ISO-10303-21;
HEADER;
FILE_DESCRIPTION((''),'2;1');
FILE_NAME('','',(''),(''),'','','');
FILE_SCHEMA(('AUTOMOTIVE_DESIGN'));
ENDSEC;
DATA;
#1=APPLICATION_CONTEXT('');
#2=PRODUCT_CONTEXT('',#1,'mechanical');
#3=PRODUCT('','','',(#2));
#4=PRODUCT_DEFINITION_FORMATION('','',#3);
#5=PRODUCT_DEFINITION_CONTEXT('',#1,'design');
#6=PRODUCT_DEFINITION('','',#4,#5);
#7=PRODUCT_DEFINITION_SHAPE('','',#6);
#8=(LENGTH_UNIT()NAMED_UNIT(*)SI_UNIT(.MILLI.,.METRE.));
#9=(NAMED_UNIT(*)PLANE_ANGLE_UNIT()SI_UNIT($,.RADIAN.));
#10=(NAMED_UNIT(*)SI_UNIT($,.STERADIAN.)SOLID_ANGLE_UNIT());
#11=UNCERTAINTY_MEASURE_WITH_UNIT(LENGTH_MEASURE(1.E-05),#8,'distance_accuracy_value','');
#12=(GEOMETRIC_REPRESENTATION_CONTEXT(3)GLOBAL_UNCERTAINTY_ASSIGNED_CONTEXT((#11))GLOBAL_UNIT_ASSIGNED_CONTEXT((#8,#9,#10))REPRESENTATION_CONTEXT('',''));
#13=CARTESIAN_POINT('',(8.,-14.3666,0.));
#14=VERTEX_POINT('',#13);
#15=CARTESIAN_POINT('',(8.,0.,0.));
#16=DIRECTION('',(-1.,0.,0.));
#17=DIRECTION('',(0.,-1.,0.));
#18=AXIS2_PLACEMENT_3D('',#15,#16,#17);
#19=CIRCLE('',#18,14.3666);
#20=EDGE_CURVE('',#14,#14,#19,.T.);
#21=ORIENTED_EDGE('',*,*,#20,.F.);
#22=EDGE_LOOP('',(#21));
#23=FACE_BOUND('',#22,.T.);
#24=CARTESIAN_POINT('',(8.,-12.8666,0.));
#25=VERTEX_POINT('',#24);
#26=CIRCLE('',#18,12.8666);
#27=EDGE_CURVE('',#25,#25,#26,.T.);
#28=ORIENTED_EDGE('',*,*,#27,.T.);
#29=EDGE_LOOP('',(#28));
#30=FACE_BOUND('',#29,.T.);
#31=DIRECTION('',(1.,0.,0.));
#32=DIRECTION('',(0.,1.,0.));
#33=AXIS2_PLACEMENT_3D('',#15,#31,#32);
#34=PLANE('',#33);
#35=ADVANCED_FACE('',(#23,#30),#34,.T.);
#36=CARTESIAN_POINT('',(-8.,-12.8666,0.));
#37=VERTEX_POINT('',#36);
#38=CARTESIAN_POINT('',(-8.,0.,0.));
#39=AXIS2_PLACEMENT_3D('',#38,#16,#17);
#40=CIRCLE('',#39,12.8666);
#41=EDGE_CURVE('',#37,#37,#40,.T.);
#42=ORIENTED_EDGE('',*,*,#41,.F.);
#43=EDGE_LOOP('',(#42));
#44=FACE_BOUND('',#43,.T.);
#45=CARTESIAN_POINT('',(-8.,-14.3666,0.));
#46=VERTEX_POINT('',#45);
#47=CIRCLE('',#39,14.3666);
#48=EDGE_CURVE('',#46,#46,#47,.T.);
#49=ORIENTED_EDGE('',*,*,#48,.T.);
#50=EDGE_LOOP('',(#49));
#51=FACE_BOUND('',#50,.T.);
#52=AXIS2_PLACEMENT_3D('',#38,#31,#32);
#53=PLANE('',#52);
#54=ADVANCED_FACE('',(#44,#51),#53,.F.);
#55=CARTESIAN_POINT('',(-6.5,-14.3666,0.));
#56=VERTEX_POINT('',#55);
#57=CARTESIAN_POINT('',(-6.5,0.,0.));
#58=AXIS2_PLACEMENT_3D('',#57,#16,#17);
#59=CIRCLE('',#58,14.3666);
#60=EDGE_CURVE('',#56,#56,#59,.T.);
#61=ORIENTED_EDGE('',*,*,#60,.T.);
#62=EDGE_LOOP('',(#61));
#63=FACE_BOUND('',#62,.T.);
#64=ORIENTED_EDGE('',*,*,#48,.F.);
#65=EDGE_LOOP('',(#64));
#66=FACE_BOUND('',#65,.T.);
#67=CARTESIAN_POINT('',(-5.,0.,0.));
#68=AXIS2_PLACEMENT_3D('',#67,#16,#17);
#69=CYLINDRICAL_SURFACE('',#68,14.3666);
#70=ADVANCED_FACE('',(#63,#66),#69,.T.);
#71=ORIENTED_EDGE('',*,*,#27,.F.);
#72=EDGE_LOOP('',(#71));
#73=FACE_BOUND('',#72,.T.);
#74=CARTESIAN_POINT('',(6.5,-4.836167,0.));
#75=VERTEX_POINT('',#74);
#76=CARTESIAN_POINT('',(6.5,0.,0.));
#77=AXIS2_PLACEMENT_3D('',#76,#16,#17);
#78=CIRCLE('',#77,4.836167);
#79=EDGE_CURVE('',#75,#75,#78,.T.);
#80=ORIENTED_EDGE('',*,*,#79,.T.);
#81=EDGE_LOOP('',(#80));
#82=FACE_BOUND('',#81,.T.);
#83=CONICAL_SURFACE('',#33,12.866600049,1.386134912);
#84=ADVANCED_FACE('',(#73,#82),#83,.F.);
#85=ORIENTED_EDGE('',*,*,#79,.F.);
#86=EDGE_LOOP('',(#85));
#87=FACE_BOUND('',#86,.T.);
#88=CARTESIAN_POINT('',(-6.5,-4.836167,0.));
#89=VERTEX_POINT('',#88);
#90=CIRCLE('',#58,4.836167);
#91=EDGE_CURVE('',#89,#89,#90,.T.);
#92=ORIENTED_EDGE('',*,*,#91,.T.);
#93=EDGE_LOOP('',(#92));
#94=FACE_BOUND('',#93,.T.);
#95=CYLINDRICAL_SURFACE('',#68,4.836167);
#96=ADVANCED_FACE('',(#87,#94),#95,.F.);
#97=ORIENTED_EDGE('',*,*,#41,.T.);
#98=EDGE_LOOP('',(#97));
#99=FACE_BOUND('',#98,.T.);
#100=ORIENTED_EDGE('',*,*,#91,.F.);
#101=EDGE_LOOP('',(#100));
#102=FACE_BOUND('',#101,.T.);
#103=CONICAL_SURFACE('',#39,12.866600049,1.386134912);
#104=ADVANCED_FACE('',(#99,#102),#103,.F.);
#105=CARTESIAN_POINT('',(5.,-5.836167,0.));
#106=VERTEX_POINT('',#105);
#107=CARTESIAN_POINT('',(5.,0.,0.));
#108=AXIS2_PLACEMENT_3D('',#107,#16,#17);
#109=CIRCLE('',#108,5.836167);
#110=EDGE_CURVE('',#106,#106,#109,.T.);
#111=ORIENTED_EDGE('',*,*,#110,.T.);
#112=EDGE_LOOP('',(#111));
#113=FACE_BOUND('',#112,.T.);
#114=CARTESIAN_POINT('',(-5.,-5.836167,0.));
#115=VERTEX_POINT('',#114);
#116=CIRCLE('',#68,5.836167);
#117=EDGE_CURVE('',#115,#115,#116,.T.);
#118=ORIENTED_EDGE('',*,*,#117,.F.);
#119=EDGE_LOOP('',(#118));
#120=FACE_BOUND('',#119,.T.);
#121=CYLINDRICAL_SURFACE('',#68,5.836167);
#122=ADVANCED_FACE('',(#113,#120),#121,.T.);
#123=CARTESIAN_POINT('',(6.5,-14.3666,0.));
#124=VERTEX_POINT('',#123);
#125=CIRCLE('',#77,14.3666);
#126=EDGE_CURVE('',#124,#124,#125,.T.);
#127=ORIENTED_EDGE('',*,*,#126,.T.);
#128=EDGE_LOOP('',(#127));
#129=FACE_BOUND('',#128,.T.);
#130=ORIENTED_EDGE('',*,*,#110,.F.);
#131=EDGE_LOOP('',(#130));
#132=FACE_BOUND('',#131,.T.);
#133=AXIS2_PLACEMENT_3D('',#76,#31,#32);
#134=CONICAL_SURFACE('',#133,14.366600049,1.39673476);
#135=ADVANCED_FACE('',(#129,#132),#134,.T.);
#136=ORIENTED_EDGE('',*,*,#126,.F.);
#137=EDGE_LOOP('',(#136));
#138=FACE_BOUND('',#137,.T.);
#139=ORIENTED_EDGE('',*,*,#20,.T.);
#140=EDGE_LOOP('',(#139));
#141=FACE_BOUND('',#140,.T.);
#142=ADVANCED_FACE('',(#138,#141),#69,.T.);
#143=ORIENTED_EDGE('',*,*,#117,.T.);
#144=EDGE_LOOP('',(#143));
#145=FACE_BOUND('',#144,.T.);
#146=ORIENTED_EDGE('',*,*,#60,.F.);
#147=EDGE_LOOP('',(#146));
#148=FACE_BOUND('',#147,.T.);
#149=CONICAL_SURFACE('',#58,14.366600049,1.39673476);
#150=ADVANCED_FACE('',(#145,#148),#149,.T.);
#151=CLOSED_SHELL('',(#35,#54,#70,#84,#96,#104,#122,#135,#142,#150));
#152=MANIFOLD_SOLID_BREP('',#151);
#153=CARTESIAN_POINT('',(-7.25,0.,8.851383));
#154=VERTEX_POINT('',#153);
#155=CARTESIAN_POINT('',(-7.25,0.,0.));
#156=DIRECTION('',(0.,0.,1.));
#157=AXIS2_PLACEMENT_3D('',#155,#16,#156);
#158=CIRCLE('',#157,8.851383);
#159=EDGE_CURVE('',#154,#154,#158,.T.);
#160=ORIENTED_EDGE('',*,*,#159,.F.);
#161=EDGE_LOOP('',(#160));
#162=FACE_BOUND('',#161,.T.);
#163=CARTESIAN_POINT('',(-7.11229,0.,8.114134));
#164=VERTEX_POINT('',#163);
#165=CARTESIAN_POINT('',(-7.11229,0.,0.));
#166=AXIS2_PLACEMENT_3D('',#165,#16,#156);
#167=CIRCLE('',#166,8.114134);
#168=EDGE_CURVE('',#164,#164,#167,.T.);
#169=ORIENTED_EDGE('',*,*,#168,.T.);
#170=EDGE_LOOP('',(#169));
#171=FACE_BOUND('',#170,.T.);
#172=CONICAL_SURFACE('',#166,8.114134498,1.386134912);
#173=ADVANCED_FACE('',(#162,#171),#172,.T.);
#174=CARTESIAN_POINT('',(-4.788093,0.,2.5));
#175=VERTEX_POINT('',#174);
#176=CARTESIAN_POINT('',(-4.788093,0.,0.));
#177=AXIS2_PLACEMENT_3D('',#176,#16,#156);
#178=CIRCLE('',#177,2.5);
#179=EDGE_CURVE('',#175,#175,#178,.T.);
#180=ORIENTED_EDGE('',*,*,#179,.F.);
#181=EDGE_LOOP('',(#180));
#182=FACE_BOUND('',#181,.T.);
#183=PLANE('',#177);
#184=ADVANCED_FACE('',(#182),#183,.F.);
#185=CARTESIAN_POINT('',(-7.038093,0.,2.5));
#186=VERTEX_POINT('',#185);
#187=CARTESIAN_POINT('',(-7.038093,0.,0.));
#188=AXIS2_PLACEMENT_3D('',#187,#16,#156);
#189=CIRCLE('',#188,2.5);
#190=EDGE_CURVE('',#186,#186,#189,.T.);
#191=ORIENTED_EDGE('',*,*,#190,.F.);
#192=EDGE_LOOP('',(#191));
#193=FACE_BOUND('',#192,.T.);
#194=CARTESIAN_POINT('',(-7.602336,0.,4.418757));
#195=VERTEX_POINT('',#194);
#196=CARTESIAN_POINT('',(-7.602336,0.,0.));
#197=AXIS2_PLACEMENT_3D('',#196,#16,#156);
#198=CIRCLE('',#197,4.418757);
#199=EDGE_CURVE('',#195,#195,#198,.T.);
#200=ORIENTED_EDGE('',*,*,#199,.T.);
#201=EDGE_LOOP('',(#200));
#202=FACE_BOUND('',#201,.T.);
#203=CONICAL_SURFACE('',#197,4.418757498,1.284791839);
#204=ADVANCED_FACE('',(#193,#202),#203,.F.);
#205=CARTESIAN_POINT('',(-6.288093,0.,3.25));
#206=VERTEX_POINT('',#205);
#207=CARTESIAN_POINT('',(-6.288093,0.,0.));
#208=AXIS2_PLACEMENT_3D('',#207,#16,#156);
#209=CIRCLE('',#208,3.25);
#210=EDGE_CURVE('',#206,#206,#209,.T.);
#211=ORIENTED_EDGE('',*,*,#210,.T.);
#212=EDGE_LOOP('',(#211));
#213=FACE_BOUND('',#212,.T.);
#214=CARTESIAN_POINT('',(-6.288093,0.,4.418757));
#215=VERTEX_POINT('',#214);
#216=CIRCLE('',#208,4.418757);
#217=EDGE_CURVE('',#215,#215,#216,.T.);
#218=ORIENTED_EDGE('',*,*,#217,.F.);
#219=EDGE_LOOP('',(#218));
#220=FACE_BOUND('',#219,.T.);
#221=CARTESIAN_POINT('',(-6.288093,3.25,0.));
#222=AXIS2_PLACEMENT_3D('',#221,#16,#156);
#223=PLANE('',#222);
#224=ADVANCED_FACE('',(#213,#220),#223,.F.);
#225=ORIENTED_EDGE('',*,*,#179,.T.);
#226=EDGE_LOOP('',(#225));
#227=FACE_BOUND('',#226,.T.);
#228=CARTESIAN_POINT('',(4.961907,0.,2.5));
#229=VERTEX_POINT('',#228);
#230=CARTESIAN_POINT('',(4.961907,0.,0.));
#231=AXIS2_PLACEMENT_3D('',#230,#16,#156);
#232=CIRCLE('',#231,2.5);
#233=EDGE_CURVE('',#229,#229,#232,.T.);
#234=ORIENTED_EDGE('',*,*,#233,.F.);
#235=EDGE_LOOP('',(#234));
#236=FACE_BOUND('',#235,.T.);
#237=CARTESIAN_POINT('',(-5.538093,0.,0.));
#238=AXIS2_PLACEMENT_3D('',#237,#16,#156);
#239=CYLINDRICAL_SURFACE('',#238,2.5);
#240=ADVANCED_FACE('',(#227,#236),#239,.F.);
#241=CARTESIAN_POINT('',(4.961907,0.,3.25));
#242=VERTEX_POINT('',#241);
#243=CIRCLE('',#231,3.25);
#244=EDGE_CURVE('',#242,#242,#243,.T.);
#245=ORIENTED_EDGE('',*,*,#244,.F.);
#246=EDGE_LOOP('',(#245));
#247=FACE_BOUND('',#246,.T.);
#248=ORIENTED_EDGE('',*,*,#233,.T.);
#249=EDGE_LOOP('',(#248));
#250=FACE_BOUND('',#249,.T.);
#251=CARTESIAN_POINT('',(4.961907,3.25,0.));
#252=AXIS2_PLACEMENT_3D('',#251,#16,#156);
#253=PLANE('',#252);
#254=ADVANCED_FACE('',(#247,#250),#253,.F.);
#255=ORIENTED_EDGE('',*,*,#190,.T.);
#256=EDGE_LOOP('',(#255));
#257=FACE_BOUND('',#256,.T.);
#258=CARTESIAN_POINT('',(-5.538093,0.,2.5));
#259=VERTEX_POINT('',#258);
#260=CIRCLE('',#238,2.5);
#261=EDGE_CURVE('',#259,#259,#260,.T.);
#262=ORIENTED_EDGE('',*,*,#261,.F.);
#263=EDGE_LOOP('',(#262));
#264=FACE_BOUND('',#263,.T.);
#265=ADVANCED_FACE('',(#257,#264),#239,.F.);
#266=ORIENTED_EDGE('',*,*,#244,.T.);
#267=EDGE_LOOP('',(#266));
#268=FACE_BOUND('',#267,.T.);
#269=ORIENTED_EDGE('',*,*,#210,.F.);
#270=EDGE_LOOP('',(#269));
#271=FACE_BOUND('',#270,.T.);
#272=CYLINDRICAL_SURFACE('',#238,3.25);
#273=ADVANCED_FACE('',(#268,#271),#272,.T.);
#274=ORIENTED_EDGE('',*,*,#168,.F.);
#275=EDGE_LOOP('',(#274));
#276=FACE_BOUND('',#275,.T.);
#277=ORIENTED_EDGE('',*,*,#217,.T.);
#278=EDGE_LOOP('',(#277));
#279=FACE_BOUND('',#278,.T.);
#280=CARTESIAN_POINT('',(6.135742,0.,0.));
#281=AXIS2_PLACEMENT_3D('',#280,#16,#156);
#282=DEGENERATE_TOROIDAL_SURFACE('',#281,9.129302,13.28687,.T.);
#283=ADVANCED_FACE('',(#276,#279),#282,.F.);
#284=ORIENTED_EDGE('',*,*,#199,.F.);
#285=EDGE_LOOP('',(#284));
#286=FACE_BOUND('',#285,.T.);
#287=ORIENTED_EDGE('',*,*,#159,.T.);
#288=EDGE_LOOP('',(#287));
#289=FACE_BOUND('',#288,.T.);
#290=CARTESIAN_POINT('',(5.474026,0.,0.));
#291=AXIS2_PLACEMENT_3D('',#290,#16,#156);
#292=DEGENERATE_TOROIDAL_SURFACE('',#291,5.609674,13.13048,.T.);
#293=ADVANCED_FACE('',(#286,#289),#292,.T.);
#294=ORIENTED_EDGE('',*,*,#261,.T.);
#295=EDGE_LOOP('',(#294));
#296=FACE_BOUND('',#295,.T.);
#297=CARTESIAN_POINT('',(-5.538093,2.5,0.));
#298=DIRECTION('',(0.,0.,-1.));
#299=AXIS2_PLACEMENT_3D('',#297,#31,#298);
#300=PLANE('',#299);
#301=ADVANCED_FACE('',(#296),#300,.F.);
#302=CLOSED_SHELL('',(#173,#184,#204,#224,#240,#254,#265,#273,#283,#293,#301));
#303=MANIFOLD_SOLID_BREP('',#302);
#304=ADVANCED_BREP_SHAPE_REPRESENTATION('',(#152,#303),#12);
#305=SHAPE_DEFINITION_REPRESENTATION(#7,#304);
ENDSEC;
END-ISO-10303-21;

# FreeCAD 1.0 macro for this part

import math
import FreeCAD as App
import Part
import Sketcher
Q = App.Units.Quantity


def add_polygon(sketch, points):
    """Adds a closed chain of lines whose ends are joined by coincident constraints."""
    first, n = sketch.GeometryCount, len(points)
    for a, b in zip(points, points[1:] + points[:1]):
        sketch.addGeometry(Part.LineSegment(App.Vector(*a, 0), App.Vector(*b, 0)), False)
    for i in range(n):
        sketch.addConstraint(Sketcher.Constraint("Coincident", first + i, 2, first + (i + 1) % n, 1))

doc = App.newDocument("Part")
params = doc.addObject("Spreadsheet::Sheet", "Params")
for row, (alias, value) in enumerate([
    ("sketch1_width", "13 mm"),
    ("sketch1_width2", "10 mm"),
    ("sketch1_width3", "1.5 mm"),
    ("revolution_angle", "360 deg"),
    ("sketch2_length", "2 mm"),
    ("sketch2_width", "1.5 mm"),
    ("sketch2_height", "2.5 mm"),
    ("sketch2_height2", "2.5 mm"),
    ("sketch2_width2", "0.75 mm"),
    ("revolution2_angle", "360 deg"),
], start=1):
    params.set(f"A{row}", alias)
    params.set(f"B{row}", "=" + value)
    params.setAlias(f"B{row}", alias)

body = doc.addObject("PartDesign::Body", "Body")

sketch1 = doc.addObject("Sketcher::SketchObject", "Sketch")
body.addObject(sketch1)
sketch1.AttachmentSupport = (doc.XY_Plane, [""])
sketch1.MapMode = "FlatFace"
add_polygon(sketch1, [(-6.5, 14.3666), (-8, 14.3666), (-8, 12.8666), (-6.5, 4.836167), (6.5, 4.836167), (8, 12.8666), (8, 14.3666), (6.5, 14.3666), (5, 5.836167), (-5, 5.836167)])
sketch1.addConstraint([
    Sketcher.Constraint("Horizontal", 0),
    Sketcher.Constraint("Vertical", 1),
    Sketcher.Constraint("Horizontal", 3),
    Sketcher.Constraint("Vertical", 5),
    Sketcher.Constraint("Horizontal", 6),
    Sketcher.Constraint("Horizontal", 8),
    Sketcher.Constraint("Symmetric", 1, 2, 4, 2, -2),
    Sketcher.Constraint("Symmetric", 6, 2, 9, 2, -2),
    Sketcher.Constraint("Vertical", 3, 2, 6, 2),
    Sketcher.Constraint("Vertical", 2, 2, 9, 2),
    Sketcher.Constraint("Equal", 6, 1),
    Sketcher.Constraint("Equal", 7, 9),
    Sketcher.Constraint("DistanceX", 3, 1, 3, 2, Q("13 mm")),
    Sketcher.Constraint("DistanceX", 8, 2, 8, 1, Q("10 mm")),
    Sketcher.Constraint("DistanceX", 0, 2, 0, 1, Q("1.5 mm")),
    Sketcher.Constraint("DistanceY", 3, 2, 7, 2, Q("1 mm")),
    Sketcher.Constraint("DistanceY", -1, 1, 0, 2, Q("14.3666 mm")),
    Sketcher.Constraint("Distance", 7, Q("8.66131 mm")),
])
sketch1.setExpression("Constraints[22]", "Params.sketch1_width")
sketch1.setExpression("Constraints[23]", "Params.sketch1_width2")
sketch1.setExpression("Constraints[24]", "Params.sketch1_width3")
revolution = doc.addObject("PartDesign::Revolution", "Revolution")
body.addObject(revolution)
revolution.Profile = sketch1
revolution.ReferenceAxis = (sketch1, ["H_Axis"])
revolution.setExpression("Angle", "Params.revolution_angle")
body2 = doc.addObject("PartDesign::Body", "Body001")

sketch2 = doc.addObject("Sketcher::SketchObject", "Sketch001")
body2.addObject(sketch2)
sketch2.AttachmentSupport = (doc.getObject("XY_Plane001"), [""])
sketch2.MapMode = "FlatFace"
sketch2.addGeometry([
    Part.LineSegment(App.Vector(-7.11229, 8.114134, 0), App.Vector(-7.25, 8.851383, 0)),
    Part.ArcOfCircle(Part.Circle(App.Vector(5.474026, 5.609674, 0), App.Vector(0, 0, 1), 13.13048), math.radians(165.706783), math.radians(185.203801)),
    Part.LineSegment(App.Vector(-7.602336, 4.418757, 0), App.Vector(-7.038093, 2.5, 0)),
    Part.LineSegment(App.Vector(-7.038093, 2.5, 0), App.Vector(-5.538093, 2.5, 0)),
    Part.LineSegment(App.Vector(-5.538093, 2.5, 0), App.Vector(-5.538093, 0, 0)),
    Part.LineSegment(App.Vector(-5.538093, 0, 0), App.Vector(-4.788093, 0, 0)),
    Part.LineSegment(App.Vector(-4.788093, 0, 0), App.Vector(-4.788093, 2.5, 0)),
    Part.LineSegment(App.Vector(-4.788093, 2.5, 0), App.Vector(4.961907, 2.5, 0)),
    Part.LineSegment(App.Vector(4.961907, 2.5, 0), App.Vector(4.961907, 3.25, 0)),
    Part.LineSegment(App.Vector(4.961907, 3.25, 0), App.Vector(-6.288093, 3.25, 0)),
    Part.LineSegment(App.Vector(-6.288093, 3.25, 0), App.Vector(-6.288093, 4.418757, 0)),
    Part.ArcOfCircle(Part.Circle(App.Vector(6.135742, 9.129302, 0), App.Vector(0, 0, 1), 13.286869), math.radians(-175.618113), math.radians(-159.235585)),
], False)
sketch2.addConstraint([
    Sketcher.Constraint("Coincident", 0, 2, 1, 1),
    Sketcher.Constraint("Coincident", 1, 2, 2, 1),
    Sketcher.Constraint("Coincident", 2, 2, 3, 1),
    Sketcher.Constraint("Coincident", 3, 2, 4, 1),
    Sketcher.Constraint("Coincident", 4, 2, 5, 1),
    Sketcher.Constraint("Coincident", 5, 2, 6, 1),
    Sketcher.Constraint("Coincident", 6, 2, 7, 1),
    Sketcher.Constraint("Coincident", 7, 2, 8, 1),
    Sketcher.Constraint("Coincident", 8, 2, 9, 1),
    Sketcher.Constraint("Coincident", 9, 2, 10, 1),
    Sketcher.Constraint("Coincident", 10, 2, 11, 2),
    Sketcher.Constraint("Coincident", 11, 1, 0, 1),
    Sketcher.Constraint("Horizontal", 3),
    Sketcher.Constraint("Vertical", 4),
    Sketcher.Constraint("Horizontal", 5),
    Sketcher.Constraint("Vertical", 6),
    Sketcher.Constraint("Horizontal", 7),
    Sketcher.Constraint("Vertical", 8),
    Sketcher.Constraint("Horizontal", 9),
    Sketcher.Constraint("Vertical", 10),
    Sketcher.Constraint("PointOnObject", 4, 2, -1),
    Sketcher.Constraint("Distance", 2, Q("2 mm")),
    Sketcher.Constraint("DistanceX", 3, 1, 3, 2, Q("1.5 mm")),
    Sketcher.Constraint("DistanceY", 4, 2, 4, 1, Q("2.5 mm")),
    Sketcher.Constraint("DistanceY", 6, 1, 6, 2, Q("2.5 mm")),
    Sketcher.Constraint("DistanceX", 5, 1, 5, 2, Q("0.75 mm")),
    Sketcher.Constraint("DistanceX", 7, 1, 7, 2, Q("9.75 mm")),
    Sketcher.Constraint("DistanceX", 9, 2, 9, 1, Q("11.25 mm")),
    Sketcher.Constraint("DistanceY", 8, 1, 8, 2, Q("0.75 mm")),
    Sketcher.Constraint("Distance", 0, Q("0.75 mm")),
    Sketcher.Constraint("DistanceX", 0, 2, -1, 1, Q("7.25 mm")),
    Sketcher.Constraint("Radius", 1, Q("13.13048 mm")),
    Sketcher.Constraint("Radius", 11, Q("13.286869 mm")),
    Sketcher.Constraint("DistanceY", 10, 1, 10, 2, Q("1.168757 mm")),
    Sketcher.Constraint("DistanceX", -1, 1, 11, 3, Q("6.135742 mm")),
    Sketcher.Constraint("DistanceX", 11, 1, -1, 1, Q("7.11229 mm")),
    Sketcher.Constraint("DistanceY", 1, 3, 0, 2, Q("3.241709 mm")),
    Sketcher.Constraint("DistanceX", 1, 2, 1, 3, Q("13.076361 mm")),
])
sketch2.setExpression("Constraints[21]", "Params.sketch2_length")
sketch2.setExpression("Constraints[22]", "Params.sketch2_width")
sketch2.setExpression("Constraints[23]", "Params.sketch2_height")
sketch2.setExpression("Constraints[24]", "Params.sketch2_height2")
sketch2.setExpression("Constraints[25]", "Params.sketch2_width2")
revolution2 = doc.addObject("PartDesign::Revolution", "Revolution001")
body2.addObject(revolution2)
revolution2.Profile = sketch2
revolution2.ReferenceAxis = (sketch2, ["H_Axis"])
revolution2.setExpression("Angle", "Params.revolution2_angle")

doc.recompute()
